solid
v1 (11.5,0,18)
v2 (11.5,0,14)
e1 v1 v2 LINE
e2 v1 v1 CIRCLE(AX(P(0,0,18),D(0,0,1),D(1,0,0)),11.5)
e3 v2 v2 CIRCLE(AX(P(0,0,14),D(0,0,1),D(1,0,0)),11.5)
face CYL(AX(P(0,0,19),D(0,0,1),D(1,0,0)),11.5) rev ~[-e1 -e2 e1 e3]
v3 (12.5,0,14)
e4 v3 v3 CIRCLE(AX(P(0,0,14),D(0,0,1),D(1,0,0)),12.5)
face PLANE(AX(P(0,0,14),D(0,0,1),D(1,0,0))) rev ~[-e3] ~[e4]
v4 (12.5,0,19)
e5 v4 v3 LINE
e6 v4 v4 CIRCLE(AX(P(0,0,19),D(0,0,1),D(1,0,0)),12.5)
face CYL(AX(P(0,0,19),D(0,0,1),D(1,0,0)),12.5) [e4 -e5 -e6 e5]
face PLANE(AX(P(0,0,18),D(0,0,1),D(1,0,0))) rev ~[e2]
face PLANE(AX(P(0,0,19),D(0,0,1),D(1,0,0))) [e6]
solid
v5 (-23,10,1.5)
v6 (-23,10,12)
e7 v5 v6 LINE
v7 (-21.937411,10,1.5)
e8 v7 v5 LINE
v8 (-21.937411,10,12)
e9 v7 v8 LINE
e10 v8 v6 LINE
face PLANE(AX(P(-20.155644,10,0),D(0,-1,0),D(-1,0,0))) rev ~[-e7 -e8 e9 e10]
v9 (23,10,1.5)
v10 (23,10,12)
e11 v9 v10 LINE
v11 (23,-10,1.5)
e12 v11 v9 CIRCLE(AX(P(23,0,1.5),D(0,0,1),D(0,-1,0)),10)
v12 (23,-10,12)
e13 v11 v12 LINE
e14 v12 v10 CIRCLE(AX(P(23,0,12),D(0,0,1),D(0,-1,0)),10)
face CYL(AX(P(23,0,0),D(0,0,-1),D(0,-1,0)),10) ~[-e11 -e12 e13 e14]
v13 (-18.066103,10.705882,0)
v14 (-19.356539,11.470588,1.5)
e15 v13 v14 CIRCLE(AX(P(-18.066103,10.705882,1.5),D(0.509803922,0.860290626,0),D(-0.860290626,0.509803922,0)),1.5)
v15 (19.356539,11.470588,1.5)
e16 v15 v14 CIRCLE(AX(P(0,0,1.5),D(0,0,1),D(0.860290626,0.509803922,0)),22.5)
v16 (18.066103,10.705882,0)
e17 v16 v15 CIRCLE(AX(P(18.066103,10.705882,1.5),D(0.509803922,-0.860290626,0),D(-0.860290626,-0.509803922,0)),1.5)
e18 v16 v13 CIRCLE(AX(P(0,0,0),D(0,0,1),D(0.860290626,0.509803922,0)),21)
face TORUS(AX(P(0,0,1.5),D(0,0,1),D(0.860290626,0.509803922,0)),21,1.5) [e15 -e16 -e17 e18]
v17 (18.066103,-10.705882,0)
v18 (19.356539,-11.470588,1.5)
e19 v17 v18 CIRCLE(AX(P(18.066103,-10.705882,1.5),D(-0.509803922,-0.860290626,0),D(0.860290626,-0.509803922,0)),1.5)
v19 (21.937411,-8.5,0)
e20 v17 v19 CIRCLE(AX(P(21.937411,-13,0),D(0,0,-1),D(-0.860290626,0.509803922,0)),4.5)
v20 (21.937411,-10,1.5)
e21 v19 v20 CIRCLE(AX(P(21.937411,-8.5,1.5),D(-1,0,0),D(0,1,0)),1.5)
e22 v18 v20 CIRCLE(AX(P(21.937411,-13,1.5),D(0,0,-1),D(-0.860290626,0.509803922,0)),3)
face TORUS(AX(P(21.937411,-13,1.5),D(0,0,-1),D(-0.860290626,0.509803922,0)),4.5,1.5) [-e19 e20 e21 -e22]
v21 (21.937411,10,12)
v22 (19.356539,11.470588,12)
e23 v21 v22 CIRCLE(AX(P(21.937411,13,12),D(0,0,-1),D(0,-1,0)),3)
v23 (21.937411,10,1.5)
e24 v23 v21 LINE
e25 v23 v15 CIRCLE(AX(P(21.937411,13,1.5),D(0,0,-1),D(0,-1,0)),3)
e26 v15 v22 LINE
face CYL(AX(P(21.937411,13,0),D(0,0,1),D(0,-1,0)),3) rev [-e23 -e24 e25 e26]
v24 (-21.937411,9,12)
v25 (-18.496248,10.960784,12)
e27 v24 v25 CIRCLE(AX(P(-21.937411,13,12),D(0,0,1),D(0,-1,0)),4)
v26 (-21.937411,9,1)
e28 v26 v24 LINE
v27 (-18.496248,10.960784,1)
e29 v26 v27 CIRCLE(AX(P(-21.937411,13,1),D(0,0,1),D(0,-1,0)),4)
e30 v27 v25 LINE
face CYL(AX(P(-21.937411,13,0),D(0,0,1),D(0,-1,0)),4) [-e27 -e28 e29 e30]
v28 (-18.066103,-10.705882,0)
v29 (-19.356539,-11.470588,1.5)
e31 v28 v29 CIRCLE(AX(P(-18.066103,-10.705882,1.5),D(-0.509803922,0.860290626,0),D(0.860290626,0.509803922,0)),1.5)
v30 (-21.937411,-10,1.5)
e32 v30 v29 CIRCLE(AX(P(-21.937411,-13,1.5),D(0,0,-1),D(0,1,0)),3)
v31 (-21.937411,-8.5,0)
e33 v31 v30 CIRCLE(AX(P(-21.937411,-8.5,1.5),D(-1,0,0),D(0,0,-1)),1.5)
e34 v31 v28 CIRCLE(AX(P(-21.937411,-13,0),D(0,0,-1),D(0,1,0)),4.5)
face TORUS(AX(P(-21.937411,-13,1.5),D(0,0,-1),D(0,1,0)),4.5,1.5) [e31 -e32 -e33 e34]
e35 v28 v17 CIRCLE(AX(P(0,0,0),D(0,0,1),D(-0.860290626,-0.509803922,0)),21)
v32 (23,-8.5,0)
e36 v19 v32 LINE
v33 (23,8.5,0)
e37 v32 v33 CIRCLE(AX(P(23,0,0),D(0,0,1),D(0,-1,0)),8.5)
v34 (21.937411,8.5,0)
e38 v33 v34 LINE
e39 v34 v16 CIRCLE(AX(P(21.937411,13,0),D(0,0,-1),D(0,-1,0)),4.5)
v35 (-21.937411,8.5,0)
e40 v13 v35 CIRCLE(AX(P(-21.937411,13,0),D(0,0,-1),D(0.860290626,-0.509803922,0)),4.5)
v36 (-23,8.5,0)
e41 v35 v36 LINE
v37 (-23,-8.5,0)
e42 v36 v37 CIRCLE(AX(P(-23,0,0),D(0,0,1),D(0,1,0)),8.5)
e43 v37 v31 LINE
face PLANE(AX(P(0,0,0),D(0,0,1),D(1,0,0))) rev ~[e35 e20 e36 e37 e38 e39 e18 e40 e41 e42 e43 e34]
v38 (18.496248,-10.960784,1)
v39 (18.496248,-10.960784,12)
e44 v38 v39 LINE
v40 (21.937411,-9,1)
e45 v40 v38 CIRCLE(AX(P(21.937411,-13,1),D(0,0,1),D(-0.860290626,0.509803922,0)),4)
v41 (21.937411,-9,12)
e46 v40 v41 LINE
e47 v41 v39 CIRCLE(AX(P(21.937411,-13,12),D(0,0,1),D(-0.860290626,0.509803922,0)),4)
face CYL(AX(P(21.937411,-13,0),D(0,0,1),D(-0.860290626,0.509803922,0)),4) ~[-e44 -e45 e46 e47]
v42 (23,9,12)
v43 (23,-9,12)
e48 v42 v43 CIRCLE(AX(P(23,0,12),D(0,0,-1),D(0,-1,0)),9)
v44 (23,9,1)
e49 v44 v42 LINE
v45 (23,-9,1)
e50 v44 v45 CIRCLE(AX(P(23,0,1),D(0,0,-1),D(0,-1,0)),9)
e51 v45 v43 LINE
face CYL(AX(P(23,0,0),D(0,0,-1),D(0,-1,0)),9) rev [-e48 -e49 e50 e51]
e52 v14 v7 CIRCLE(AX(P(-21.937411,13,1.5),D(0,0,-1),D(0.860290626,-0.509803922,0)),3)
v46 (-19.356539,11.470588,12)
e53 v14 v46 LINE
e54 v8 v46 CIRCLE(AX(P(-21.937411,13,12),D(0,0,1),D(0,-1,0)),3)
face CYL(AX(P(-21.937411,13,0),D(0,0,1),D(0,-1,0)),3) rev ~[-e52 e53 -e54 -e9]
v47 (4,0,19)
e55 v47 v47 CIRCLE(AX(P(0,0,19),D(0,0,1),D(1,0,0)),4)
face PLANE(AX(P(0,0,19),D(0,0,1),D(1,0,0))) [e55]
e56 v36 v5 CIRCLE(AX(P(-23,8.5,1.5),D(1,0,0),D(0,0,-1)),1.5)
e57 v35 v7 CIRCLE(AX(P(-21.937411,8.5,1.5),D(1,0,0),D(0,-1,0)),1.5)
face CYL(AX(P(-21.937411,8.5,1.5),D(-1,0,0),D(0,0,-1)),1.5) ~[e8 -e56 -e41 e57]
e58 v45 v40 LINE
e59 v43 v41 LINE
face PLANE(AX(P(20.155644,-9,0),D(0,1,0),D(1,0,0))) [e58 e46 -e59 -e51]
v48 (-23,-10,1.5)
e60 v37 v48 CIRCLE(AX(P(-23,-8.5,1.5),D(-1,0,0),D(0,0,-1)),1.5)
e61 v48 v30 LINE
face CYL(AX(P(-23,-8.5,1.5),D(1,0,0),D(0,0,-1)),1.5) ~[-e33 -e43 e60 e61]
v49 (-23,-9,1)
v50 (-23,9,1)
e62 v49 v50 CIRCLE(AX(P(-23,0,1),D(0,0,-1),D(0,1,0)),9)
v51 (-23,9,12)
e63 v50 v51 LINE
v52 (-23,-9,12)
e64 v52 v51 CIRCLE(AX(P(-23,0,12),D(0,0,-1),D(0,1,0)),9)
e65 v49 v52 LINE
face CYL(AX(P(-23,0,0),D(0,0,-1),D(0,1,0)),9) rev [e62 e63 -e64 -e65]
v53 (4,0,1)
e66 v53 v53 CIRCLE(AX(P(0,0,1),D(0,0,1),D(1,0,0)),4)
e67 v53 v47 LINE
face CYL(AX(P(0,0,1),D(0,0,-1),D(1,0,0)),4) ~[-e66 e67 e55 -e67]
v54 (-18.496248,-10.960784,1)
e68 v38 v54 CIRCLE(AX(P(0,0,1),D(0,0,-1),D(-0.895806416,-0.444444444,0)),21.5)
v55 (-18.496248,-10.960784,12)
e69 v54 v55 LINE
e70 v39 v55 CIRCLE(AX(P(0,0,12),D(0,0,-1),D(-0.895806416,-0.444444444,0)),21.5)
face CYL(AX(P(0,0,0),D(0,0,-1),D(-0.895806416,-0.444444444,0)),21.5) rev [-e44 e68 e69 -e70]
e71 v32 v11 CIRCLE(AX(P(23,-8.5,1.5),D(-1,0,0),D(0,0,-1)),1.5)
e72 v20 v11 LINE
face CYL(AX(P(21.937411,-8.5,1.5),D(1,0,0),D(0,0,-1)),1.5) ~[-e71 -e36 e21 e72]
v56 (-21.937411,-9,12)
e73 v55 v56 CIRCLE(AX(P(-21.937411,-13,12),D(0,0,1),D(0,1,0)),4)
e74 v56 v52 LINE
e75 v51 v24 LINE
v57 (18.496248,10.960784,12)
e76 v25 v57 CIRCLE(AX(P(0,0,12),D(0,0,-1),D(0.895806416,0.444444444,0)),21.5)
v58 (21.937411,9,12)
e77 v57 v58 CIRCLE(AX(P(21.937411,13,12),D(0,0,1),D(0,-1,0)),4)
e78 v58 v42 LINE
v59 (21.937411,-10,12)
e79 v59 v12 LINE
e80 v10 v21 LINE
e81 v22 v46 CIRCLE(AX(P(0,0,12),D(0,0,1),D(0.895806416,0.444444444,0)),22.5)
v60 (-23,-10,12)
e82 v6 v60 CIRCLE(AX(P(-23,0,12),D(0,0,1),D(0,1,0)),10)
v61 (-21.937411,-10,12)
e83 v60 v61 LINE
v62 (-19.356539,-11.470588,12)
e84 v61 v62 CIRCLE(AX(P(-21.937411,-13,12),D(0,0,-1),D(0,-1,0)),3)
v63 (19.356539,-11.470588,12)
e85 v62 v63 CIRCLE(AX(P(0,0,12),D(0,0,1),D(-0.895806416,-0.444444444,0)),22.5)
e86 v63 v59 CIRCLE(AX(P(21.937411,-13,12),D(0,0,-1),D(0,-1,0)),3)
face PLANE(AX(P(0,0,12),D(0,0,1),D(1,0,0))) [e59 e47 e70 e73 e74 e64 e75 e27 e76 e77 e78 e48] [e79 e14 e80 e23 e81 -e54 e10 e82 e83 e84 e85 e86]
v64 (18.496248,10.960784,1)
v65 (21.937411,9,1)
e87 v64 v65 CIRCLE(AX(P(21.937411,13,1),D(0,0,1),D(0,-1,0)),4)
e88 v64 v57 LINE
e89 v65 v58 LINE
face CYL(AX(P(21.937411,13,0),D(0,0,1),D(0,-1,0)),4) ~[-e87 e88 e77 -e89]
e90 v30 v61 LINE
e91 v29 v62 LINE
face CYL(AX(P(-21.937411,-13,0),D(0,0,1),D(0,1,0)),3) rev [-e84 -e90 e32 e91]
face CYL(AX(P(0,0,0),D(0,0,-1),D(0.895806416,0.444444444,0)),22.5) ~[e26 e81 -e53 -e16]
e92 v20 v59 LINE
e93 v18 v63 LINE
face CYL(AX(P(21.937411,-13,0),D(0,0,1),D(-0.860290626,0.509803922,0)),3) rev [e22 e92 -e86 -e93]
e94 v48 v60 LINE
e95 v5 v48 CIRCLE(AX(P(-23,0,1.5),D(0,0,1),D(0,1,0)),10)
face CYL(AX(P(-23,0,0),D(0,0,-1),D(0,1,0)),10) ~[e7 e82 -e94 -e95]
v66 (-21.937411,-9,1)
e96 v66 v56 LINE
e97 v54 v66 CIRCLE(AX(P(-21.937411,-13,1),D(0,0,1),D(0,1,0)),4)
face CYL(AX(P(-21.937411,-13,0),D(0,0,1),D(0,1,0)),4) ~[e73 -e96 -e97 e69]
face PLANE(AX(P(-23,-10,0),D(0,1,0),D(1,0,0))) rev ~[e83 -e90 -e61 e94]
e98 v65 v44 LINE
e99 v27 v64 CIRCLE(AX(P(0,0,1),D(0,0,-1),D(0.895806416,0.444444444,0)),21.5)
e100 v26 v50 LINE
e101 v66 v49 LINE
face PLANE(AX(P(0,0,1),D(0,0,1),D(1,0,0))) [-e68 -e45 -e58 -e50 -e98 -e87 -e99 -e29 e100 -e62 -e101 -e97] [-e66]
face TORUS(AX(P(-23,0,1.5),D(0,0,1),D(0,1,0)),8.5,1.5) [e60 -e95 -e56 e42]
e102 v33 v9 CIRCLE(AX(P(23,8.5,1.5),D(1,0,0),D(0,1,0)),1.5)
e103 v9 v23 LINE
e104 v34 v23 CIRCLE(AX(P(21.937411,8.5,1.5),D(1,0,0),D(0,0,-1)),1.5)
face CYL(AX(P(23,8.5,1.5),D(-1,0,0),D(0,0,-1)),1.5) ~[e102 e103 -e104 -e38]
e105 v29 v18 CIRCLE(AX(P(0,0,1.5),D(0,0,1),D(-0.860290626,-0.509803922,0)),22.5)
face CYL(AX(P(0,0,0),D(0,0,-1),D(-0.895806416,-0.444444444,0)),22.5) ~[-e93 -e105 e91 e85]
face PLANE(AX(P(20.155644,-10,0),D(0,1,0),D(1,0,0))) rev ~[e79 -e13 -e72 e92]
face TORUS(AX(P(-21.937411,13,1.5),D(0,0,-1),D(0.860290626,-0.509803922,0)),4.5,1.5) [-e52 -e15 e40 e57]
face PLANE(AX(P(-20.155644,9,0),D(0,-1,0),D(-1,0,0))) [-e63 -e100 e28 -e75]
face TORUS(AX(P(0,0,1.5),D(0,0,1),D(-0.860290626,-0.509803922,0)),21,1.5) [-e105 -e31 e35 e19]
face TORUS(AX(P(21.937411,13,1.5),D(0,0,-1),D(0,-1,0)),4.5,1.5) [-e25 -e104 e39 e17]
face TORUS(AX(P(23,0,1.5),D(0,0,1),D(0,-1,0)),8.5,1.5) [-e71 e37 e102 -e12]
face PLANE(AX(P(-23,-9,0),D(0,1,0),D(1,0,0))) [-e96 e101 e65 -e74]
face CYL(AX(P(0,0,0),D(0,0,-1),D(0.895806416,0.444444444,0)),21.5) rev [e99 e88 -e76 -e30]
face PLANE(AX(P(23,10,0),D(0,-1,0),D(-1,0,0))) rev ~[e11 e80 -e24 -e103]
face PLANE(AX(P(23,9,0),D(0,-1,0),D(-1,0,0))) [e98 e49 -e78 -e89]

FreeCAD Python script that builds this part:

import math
import FreeCAD as App
import Part
import Sketcher

V = App.Vector
Q = App.Units.Quantity


def edges_at(feature, points):
    """Names of the edges that pass closest to the given points."""
    edges = feature.Shape.Edges
    near = lambda p: min(range(len(edges)), key=lambda i: edges[i].distToShape(Part.Vertex(*p))[0])
    return sorted({f"Edge{near(p) + 1}" for p in points})


def faces_at(feature, points):
    """Names of the faces that lie closest to the given points."""
    faces = feature.Shape.Faces
    near = lambda p: min(range(len(faces)), key=lambda i: faces[i].distToShape(Part.Vertex(*p))[0])
    return sorted({f"Face{near(p) + 1}" for p in points})

doc = App.newDocument("Part")
params = doc.addObject("Spreadsheet::Sheet", "Params")
for row, (alias, value) in enumerate([
    ("sketch1_radius", "10 mm"),
    ("sketch1_radius2", "22.5 mm"),
    ("pad1_length", "12 mm"),
    ("fillet_radius", "3 mm"),
    ("thickness_wall", "1 mm"),
    ("sketch2_diameter", "8 mm"),
    ("pad2_length", "18 mm"),
    ("fillet2_radius", "1.5 mm"),
    ("sketch3_diameter", "25 mm"),
    ("pad3_length", "5 mm"),
    ("thickness2_wall", "1 mm"),
], start=1):
    params.set(f"A{row}", alias)
    params.set(f"B{row}", "=" + value)
    params.setAlias(f"B{row}", alias)

body = doc.addObject("PartDesign::Body", "Body")

sketch1 = body.newObject("Sketcher::SketchObject", "Sketch")
sketch1.AttachmentSupport = (doc.getObject("XY_Plane"), [""])
sketch1.MapMode = "FlatFace"
sketch1.addGeometry([
    Part.LineSegment(V(-20.2, 10, 0), V(-23, 10, 0)),
    Part.ArcOfCircle(Part.Circle(V(-23, 0, 0), V(0, 0, 1), 10), math.radians(90), math.radians(270)),
    Part.LineSegment(V(-23, -10, 0), V(-20.2, -10, 0)),
    Part.ArcOfCircle(Part.Circle(V(0, 0, 0), V(0, 0, 1), 22.5), math.radians(-154), math.radians(-26)),
    Part.LineSegment(V(20.2, -10, 0), V(23, -10, 0)),
    Part.ArcOfCircle(Part.Circle(V(23, 0, 0), V(0, 0, 1), 10), math.radians(-90), math.radians(90)),
    Part.LineSegment(V(23, 10, 0), V(20.2, 10, 0)),
    Part.ArcOfCircle(Part.Circle(V(0, 0, 0), V(0, 0, 1), 22.5), math.radians(26), math.radians(154)),
], False)
sketch1.addConstraint([
    Sketcher.Constraint("Tangent", 0, 2, 1, 1),
    Sketcher.Constraint("Tangent", 1, 2, 2, 1),
    Sketcher.Constraint("Coincident", 2, 2, 3, 1),
    Sketcher.Constraint("Coincident", 3, 2, 4, 1),
    Sketcher.Constraint("Tangent", 4, 2, 5, 1),
    Sketcher.Constraint("Tangent", 5, 2, 6, 1),
    Sketcher.Constraint("Coincident", 6, 2, 7, 1),
    Sketcher.Constraint("Coincident", 7, 2, 0, 1),
    Sketcher.Constraint("Horizontal", 0),
    Sketcher.Constraint("Horizontal", 2),
    Sketcher.Constraint("Horizontal", 4),
    Sketcher.Constraint("Horizontal", 6),
    Sketcher.Constraint("Coincident", 3, 3, -1, 1),
    Sketcher.Constraint("Coincident", 7, 3, -1, 1),
    Sketcher.Constraint("Equal", 1, 5),
    Sketcher.Constraint("Equal", 3, 7),
    Sketcher.Constraint("Symmetric", 1, 3, 5, 3, -1, 1),
    Sketcher.Constraint("PointOnObject", 1, 3, -1),
    Sketcher.Constraint("Radius", 1, Q("10 mm")),
    Sketcher.Constraint("Radius", 3, Q("22.5 mm")),
    Sketcher.Constraint("DistanceX", 1, 3, -1, 1, Q("23 mm")),
])
sketch1.setExpression("Constraints[18]", "Params.sketch1_radius")
sketch1.setExpression("Constraints[19]", "Params.sketch1_radius2")
pad1 = body.newObject("PartDesign::Pad", "Pad")
pad1.Profile = sketch1
pad1.setExpression("Length", "Params.pad1_length")
doc.recompute()

fillet = body.newObject("PartDesign::Fillet", "Fillet")
fillet.Base = (pad1, edges_at(pad1, [
    (20.156, 10, 6),
    (20.156, -10, 6),
    (-20.156, -10, 6),
    (-20.156, 10, 6),
]))
fillet.setExpression("Radius", "Params.fillet_radius")
doc.recompute()

thickness = body.newObject("PartDesign::Thickness", "Thickness")
thickness.Base = (fillet, faces_at(fillet, [(0, 0, 12)]))
thickness.setExpression("Value", "Params.thickness_wall")
thickness.Reversed = True
thickness.Join = "Intersection"

sketch2 = body.newObject("Sketcher::SketchObject", "Sketch001")
sketch2.AttachmentSupport = (doc.getObject("XY_Plane"), [""])
sketch2.MapMode = "FlatFace"
sketch2.AttachmentOffset = App.Placement(V(0, 0, 1), App.Rotation())
sketch2.addGeometry(Part.Circle(V(0, 0, 0), V(0, 0, 1), 4), False)
sketch2.addConstraint([
    Sketcher.Constraint("Coincident", 0, 3, -1, 1),
    Sketcher.Constraint("Diameter", 0, Q("8 mm")),
])
sketch2.setExpression("Constraints[1]", "Params.sketch2_diameter")
pad2 = body.newObject("PartDesign::Pad", "Pad001")
pad2.Profile = sketch2
pad2.setExpression("Length", "Params.pad2_length")
doc.recompute()

fillet2 = body.newObject("PartDesign::Fillet", "Fillet001")
fillet2.Base = (pad2, edges_at(pad2, [
    (-22.469, -10, 0),
    (-33, 0, 0),
    (0, -22.5, 0),
    (22.469, -10, 0),
    (0, 22.5, 0),
    (-22.469, 10, 0),
    (-20.452, -10.393, 0),
    (20.452, -10.393, 0),
    (20.452, 10.393, 0),
    (-20.452, 10.393, 0),
    (22.469, 10, 0),
    (33, 0, 0),
]))
fillet2.setExpression("Radius", "Params.fillet2_radius")
body2 = doc.addObject("PartDesign::Body", "Body001")

sketch3 = body2.newObject("Sketcher::SketchObject", "Sketch002")
sketch3.AttachmentSupport = (doc.getObject("XY_Plane001"), [""])
sketch3.MapMode = "FlatFace"
sketch3.AttachmentOffset = App.Placement(V(0, 0, 19), App.Rotation())
sketch3.addGeometry(Part.Circle(V(0, 0, 0), V(0, 0, 1), 12), False)
sketch3.addConstraint([
    Sketcher.Constraint("Coincident", 0, 3, -1, 1),
    Sketcher.Constraint("Diameter", 0, Q("25 mm")),
])
sketch3.setExpression("Constraints[1]", "Params.sketch3_diameter")
pad3 = body2.newObject("PartDesign::Pad", "Pad002")
pad3.Profile = sketch3
pad3.setExpression("Length", "Params.pad3_length")
pad3.Reversed = True
doc.recompute()

thickness2 = body2.newObject("PartDesign::Thickness", "Thickness001")
thickness2.Base = (pad3, faces_at(pad3, [(0, 0, 14)]))
thickness2.setExpression("Value", "Params.thickness2_wall")
thickness2.Reversed = True
thickness2.Join = "Intersection"

doc.recompute()
